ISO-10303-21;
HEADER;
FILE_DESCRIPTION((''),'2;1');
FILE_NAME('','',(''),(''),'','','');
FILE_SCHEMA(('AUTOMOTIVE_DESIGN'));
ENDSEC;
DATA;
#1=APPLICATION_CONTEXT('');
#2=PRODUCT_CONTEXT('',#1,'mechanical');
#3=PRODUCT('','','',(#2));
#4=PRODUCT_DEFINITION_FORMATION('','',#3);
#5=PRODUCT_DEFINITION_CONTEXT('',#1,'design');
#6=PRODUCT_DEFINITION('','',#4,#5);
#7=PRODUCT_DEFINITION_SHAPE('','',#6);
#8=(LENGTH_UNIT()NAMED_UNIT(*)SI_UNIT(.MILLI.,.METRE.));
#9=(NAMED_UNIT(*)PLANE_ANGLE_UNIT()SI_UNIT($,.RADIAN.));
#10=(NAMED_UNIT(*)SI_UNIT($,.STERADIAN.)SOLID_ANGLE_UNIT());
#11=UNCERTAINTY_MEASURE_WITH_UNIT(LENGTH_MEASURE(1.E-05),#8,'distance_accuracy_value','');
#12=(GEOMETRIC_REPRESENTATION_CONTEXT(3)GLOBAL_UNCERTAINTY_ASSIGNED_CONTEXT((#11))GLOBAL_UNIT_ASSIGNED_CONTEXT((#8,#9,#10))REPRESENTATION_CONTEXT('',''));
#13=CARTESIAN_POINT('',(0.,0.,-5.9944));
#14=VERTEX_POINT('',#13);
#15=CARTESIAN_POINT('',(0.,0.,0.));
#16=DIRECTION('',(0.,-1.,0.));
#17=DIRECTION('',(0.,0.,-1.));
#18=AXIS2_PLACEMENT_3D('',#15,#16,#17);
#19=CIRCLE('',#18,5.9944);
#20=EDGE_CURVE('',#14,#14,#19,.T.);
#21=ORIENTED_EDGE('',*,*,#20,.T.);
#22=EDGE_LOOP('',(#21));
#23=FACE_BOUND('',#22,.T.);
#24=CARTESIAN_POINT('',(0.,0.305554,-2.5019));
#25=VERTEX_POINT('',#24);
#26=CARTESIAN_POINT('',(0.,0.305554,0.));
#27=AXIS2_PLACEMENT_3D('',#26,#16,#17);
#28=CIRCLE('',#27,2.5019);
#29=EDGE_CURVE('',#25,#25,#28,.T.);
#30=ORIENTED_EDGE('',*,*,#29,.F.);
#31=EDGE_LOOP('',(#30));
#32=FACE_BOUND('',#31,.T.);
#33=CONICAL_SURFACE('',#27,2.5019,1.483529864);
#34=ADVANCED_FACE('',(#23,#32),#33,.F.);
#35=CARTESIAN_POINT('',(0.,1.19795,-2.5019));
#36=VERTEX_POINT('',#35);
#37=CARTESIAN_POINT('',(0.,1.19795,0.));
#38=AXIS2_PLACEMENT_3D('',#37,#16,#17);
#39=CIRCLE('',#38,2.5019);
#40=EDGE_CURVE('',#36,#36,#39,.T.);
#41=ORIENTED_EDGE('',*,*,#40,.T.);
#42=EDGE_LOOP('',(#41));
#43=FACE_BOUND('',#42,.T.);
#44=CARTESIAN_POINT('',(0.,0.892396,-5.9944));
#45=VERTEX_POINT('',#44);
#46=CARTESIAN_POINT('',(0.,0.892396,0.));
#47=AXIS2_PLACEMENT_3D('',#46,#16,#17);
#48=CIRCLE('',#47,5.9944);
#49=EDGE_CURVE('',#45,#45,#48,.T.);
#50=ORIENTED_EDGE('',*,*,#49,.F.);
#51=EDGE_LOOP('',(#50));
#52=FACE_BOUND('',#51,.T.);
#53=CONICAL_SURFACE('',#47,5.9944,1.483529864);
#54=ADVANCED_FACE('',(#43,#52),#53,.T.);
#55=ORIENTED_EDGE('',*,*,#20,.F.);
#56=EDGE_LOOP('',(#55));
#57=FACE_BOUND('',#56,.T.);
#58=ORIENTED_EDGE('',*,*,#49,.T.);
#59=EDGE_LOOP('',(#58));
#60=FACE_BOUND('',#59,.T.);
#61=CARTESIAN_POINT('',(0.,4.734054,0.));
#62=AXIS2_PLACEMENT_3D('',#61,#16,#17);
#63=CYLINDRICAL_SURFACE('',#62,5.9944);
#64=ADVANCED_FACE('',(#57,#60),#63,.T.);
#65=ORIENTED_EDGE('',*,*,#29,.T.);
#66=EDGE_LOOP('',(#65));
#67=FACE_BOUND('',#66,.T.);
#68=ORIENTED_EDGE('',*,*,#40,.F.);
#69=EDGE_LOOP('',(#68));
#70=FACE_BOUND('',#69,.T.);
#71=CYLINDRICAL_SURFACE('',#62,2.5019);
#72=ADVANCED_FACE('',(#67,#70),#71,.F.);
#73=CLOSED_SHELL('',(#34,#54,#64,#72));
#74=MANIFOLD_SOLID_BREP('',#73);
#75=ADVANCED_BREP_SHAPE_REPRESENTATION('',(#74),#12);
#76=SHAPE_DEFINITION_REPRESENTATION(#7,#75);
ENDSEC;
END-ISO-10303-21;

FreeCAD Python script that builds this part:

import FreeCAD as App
import Part
import Sketcher

V = App.Vector
Q = App.Units.Quantity

doc = App.newDocument("Part")
body = doc.addObject("PartDesign::Body", "Body")

# Sketch on XY plane
sketch1 = body.newObject("Sketcher::SketchObject", "Sketch")
sketch1.AttachmentSupport = (doc.getObject("XY_Plane"), [""])
sketch1.MapMode = "FlatFace"
sketch1.addGeometry([
    Part.LineSegment(V(2.5019, 1.19795, 0), V(2.5019, 0.305554, 0)),
    Part.LineSegment(V(2.5019, 0.305554, 0), V(5.9944, 0, 0)),
    Part.LineSegment(V(5.9944, 0, 0), V(5.9944, 0.892396, 0)),
    Part.LineSegment(V(5.9944, 0.892396, 0), V(2.5019, 1.19795, 0)),
], False)
sketch1.addConstraint([
    Sketcher.Constraint("Coincident", 0, 2, 1, 1),
    Sketcher.Constraint("Coincident", 1, 2, 2, 1),
    Sketcher.Constraint("Coincident", 2, 2, 3, 1),
    Sketcher.Constraint("Coincident", 3, 2, 0, 1),
    Sketcher.Constraint("Vertical", 0),
    Sketcher.Constraint("Vertical", 2),
    Sketcher.Constraint("PointOnObject", 1, 2, -1),
    Sketcher.Constraint("Parallel", 1, 3),
    Sketcher.Constraint("Angle", 1, Q("-5 deg")),
    Sketcher.Constraint("DistanceX", -1, 1, 0, 2, 2.5019),
    Sketcher.Constraint("DistanceX", -1, 1, 1, 2, 5.9944),
    Sketcher.Constraint("DistanceY", 0, 2, 0, 1, 0.892396),
])
revolution = body.newObject("PartDesign::Revolution", "Revolution")
revolution.Profile = sketch1
revolution.ReferenceAxis = (sketch1, ["V_Axis"])
revolution.Angle = 360

doc.recompute()
